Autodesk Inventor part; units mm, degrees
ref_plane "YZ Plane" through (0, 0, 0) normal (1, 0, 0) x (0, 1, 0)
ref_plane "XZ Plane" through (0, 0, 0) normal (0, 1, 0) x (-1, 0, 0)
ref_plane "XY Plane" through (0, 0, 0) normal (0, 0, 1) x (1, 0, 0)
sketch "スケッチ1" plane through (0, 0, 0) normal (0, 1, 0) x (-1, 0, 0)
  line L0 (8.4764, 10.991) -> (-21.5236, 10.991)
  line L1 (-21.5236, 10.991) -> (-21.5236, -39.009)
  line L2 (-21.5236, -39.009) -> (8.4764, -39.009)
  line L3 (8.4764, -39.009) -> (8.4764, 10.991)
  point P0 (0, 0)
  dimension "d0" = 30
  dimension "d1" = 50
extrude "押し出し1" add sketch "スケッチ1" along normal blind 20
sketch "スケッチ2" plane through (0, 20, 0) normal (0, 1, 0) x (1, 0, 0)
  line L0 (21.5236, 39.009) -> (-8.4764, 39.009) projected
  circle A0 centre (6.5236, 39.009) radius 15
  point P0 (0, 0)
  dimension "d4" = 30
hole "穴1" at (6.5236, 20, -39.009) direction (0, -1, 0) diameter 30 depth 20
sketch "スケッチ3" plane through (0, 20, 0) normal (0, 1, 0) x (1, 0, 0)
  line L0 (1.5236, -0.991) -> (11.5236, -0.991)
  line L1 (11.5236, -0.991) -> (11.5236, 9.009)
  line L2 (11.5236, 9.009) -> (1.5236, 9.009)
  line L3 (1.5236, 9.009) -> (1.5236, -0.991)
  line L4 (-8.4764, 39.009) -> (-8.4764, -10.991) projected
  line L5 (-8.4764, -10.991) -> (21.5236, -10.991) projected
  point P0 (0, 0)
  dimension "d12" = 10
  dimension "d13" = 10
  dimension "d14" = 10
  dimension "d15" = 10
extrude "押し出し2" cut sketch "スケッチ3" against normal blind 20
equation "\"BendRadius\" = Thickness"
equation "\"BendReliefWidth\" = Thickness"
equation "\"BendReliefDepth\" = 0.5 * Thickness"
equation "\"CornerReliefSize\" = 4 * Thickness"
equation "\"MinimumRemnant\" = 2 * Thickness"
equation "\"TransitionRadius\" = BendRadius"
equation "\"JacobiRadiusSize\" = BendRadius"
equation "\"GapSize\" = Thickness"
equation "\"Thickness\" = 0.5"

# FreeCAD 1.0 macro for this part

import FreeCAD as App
import Part
import Sketcher

V = App.Vector
Q = App.Units.Quantity


def add_polygon(sketch, points):
    """Adds a closed chain of lines whose ends are joined by coincident constraints."""
    first, n = sketch.GeometryCount, len(points)
    for a, b in zip(points, points[1:] + points[:1]):
        sketch.addGeometry(Part.LineSegment(App.Vector(*a, 0), App.Vector(*b, 0)), False)
    for i in range(n):
        sketch.addConstraint(Sketcher.Constraint("Coincident", first + i, 2, first + (i + 1) % n, 1))

doc = App.newDocument("Part")
body = doc.addObject("PartDesign::Body", "Body")

# Sketch on XZ plane
sketch1 = body.newObject("Sketcher::SketchObject", "Sketch")
sketch1.AttachmentSupport = (doc.getObject("XZ_Plane"), [""])
sketch1.MapMode = "FlatFace"
add_polygon(sketch1, [(-8.4764, -39.009), (-8.4764, 10.991), (21.5236, 10.991), (21.5236, -39.009)])  # lines 0-3
sketch1.addConstraint(Sketcher.Constraint("Vertical", 0))
sketch1.addConstraint(Sketcher.Constraint("Horizontal", 1))
sketch1.addConstraint(Sketcher.Constraint("Vertical", 2))
sketch1.addConstraint(Sketcher.Constraint("Horizontal", 3))
sketch1.addConstraint(Sketcher.Constraint("DistanceX", 1, 1, 1, 2, Q("30 mm")))
sketch1.addConstraint(Sketcher.Constraint("DistanceY", 0, 1, 0, 2, Q("50 mm")))
sketch1.addConstraint(Sketcher.Constraint("DistanceY", -1, 1, 0, 2, Q("10.991 mm")))
sketch1.addConstraint(Sketcher.Constraint("DistanceX", 0, 2, -1, 1, Q("8.4764 mm")))
pad1 = body.newObject("PartDesign::Pad", "Pad")
pad1.Profile = sketch1
pad1.Length = 20
pad1.Reversed = True

# Sketch on XZ plane
sketch2 = body.newObject("Sketcher::SketchObject", "Sketch001")
sketch2.AttachmentSupport = (doc.getObject("XZ_Plane"), [""])
sketch2.MapMode = "FlatFace"
sketch2.AttachmentOffset = App.Placement(V(0, 0, -20), App.Rotation())
sketch2.addGeometry(Part.Circle(V(6.5236, -39.009, 0), V(0, 0, 1), 15), False)
sketch2.addConstraint(Sketcher.Constraint("Diameter", 0, Q("30 mm")))
sketch2.addConstraint(Sketcher.Constraint("DistanceY", 0, 3, -1, 1, Q("39.009 mm")))
sketch2.addConstraint(Sketcher.Constraint("DistanceX", -1, 1, 0, 3, Q("6.5236 mm")))
doc.recompute()
hole = body.newObject("PartDesign::Hole", "Hole")
hole.Profile = sketch2
hole.ThreadType = "None"
hole.Diameter = 30
hole.DepthType = "Dimension"
hole.Depth = 20
hole.DrillPoint = "Flat"
hole.Reversed = True

# Sketch on XZ plane
sketch3 = body.newObject("Sketcher::SketchObject", "Sketch002")
sketch3.AttachmentSupport = (doc.getObject("XZ_Plane"), [""])
sketch3.MapMode = "FlatFace"
sketch3.AttachmentOffset = App.Placement(V(0, 0, -20), App.Rotation())
add_polygon(sketch3, [(1.5236, -9.009), (1.5236, 0.991), (11.5236, 0.991), (11.5236, -9.009)])  # lines 0-3
sketch3.addConstraint(Sketcher.Constraint("Vertical", 0))
sketch3.addConstraint(Sketcher.Constraint("Horizontal", 1))
sketch3.addConstraint(Sketcher.Constraint("Vertical", 2))
sketch3.addConstraint(Sketcher.Constraint("Horizontal", 3))
sketch3.addConstraint(Sketcher.Constraint("Equal", 3, 0))
sketch3.addConstraint(Sketcher.Constraint("DistanceX", 1, 1, 1, 2, Q("10 mm")))
sketch3.addConstraint(Sketcher.Constraint("DistanceY", -1, 1, 0, 2, Q("0.991 mm")))
sketch3.addConstraint(Sketcher.Constraint("DistanceX", -1, 1, 0, 2, Q("1.5236 mm")))
pocket1 = body.newObject("PartDesign::Pocket", "Pocket")
pocket1.Profile = sketch3
pocket1.Length = 20
pocket1.Reversed = True

doc.recompute()
